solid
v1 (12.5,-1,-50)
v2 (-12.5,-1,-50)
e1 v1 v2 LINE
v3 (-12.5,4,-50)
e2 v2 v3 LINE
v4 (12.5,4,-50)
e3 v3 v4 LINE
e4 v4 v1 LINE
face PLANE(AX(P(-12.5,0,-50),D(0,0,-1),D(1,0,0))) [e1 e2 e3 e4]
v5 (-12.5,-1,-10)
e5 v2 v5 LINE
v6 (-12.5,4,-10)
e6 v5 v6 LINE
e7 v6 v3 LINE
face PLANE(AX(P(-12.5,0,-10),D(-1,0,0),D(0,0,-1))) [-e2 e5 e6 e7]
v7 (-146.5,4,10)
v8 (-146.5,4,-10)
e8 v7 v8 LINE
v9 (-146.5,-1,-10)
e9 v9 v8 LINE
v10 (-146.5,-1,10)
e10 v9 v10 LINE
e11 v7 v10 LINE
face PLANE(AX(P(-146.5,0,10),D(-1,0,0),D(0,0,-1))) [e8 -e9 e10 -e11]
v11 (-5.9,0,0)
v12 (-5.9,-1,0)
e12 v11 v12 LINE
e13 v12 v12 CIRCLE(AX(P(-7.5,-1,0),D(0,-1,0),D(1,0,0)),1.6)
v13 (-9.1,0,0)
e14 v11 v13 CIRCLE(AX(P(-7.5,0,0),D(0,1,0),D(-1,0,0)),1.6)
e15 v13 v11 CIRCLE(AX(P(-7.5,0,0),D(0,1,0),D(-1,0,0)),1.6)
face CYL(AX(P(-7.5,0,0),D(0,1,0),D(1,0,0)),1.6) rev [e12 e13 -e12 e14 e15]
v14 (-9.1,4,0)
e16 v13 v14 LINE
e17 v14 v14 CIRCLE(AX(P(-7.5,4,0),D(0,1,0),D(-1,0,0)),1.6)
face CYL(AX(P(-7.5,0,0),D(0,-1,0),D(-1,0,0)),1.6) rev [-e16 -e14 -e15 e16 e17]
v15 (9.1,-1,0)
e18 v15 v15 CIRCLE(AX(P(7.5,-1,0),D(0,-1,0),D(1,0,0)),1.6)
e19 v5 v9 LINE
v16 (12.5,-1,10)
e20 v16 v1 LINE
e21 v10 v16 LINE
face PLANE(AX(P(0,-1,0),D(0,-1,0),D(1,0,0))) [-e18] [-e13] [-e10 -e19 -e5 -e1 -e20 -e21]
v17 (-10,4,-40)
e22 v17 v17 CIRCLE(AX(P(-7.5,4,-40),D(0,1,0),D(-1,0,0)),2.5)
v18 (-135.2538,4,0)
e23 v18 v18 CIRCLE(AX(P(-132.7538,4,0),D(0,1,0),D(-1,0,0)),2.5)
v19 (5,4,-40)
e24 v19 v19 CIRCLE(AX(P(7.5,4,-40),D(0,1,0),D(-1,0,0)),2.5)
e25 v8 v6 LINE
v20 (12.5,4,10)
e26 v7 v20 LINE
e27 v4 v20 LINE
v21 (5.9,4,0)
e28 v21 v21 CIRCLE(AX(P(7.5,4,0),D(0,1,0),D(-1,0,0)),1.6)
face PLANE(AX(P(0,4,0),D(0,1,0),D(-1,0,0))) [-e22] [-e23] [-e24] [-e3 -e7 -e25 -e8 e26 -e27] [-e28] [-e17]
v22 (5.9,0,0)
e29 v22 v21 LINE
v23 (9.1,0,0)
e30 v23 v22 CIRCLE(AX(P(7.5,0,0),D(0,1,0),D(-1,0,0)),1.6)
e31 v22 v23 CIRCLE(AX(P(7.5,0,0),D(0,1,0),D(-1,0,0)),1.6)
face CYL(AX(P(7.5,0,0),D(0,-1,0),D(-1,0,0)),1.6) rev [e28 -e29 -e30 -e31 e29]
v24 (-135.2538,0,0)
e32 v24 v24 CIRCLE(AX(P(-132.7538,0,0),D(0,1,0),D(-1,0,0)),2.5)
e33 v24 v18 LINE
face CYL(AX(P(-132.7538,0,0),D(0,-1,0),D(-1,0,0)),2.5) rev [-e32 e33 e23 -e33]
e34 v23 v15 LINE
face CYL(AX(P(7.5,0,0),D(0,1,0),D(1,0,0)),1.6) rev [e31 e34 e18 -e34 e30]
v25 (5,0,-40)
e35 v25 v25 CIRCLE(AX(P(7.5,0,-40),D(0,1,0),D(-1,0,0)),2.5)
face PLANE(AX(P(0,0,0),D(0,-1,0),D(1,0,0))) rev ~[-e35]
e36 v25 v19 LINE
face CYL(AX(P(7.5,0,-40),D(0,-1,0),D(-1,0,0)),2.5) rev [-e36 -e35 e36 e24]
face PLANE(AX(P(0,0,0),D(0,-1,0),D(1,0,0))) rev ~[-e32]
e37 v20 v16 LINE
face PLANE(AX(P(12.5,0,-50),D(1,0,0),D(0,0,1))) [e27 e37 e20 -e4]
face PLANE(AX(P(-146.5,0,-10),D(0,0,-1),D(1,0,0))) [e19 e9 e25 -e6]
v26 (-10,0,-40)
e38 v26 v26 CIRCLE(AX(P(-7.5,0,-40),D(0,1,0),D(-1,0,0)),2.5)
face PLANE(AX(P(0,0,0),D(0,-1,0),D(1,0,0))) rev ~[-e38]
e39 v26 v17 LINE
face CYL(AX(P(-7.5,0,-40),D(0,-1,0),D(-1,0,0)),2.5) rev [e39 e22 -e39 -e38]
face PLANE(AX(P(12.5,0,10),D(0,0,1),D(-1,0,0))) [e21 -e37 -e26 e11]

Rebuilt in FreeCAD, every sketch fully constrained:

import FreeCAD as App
import Part
import Sketcher
from FreeCAD import Vector


def add_polygon(sketch, points):
    """Adds a closed chain of lines whose ends are joined by coincident constraints."""
    first, n = sketch.GeometryCount, len(points)
    for a, b in zip(points, points[1:] + points[:1]):
        sketch.addGeometry(Part.LineSegment(App.Vector(*a, 0), App.Vector(*b, 0)), False)
    for i in range(n):
        sketch.addConstraint(Sketcher.Constraint("Coincident", first + i, 2, first + (i + 1) % n, 1))

doc = App.newDocument("Part")
body = doc.addObject("PartDesign::Body", "Body")

# Sketch on XZ plane
sketch1 = body.newObject("Sketcher::SketchObject", "Sketch")
sketch1.AttachmentSupport = (doc.getObject("XZ_Plane"), [""])
sketch1.MapMode = "FlatFace"
add_polygon(sketch1, [(12.5, -50), (-12.5, -50), (-12.5, -10), (-146.5, -10), (-146.5, 10), (12.5, 10)])  # lines 0-5
sketch1.addGeometry(Part.Circle(Vector(7.5, -40, 0), Vector(0, 0, 1), 2.5), False)  # 6
sketch1.addGeometry(Part.Circle(Vector(-7.5, -40, 0), Vector(0, 0, 1), 2.5), False)  # 7
sketch1.addGeometry(Part.Circle(Vector(7.5, 0, 0), Vector(0, 0, 1), 1.6), False)  # 8
sketch1.addGeometry(Part.Circle(Vector(-7.5, 0, 0), Vector(0, 0, 1), 1.6), False)  # 9
sketch1.addGeometry(Part.Circle(Vector(-132.7538, 0, 0), Vector(0, 0, 1), 2.5), False)  # 10
sketch1.addConstraint(Sketcher.Constraint("Horizontal", 0))
sketch1.addConstraint(Sketcher.Constraint("Vertical", 1))
sketch1.addConstraint(Sketcher.Constraint("Horizontal", 2))
sketch1.addConstraint(Sketcher.Constraint("Vertical", 3))
sketch1.addConstraint(Sketcher.Constraint("Horizontal", 4))
sketch1.addConstraint(Sketcher.Constraint("Vertical", 5))
sketch1.addConstraint(Sketcher.Constraint("Equal", 6, 7))
sketch1.addConstraint(Sketcher.Constraint("Equal", 8, 9))
sketch1.addConstraint(Sketcher.Constraint("Equal", 7, 10))
sketch1.addConstraint(Sketcher.Constraint("Symmetric", 8, 3, 9, 3, -1, 1))
sketch1.addConstraint(Sketcher.Constraint("Symmetric", 1, 2, 4, 2, -1, 1))
sketch1.addConstraint(Sketcher.Constraint("Symmetric", 6, 3, 7, 3, -2))
sketch1.addConstraint(Sketcher.Constraint("PointOnObject", 8, 3, -1))
sketch1.addConstraint(Sketcher.Constraint("PointOnObject", 10, 3, -1))
sketch1.addConstraint(Sketcher.Constraint("Vertical", 6, 3, 8, 3))
sketch1.addConstraint(Sketcher.Constraint("Diameter", 6, 5.0))
sketch1.addConstraint(Sketcher.Constraint("Diameter", 8, 3.2))
sketch1.addConstraint(Sketcher.Constraint("DistanceX", 0, 2, 0, 1, 25.0))
sketch1.addConstraint(Sketcher.Constraint("DistanceX", 2, 2, 2, 1, 134.0))
sketch1.addConstraint(Sketcher.Constraint("DistanceY", 3, 1, 3, 2, 20.0))
sketch1.addConstraint(Sketcher.Constraint("DistanceY", 5, 2, 5, 1, 60.0))
sketch1.addConstraint(Sketcher.Constraint("DistanceX", 7, 3, 6, 3, 15.0))
sketch1.addConstraint(Sketcher.Constraint("DistanceY", 0, 2, 7, 3, 10.0))
sketch1.addConstraint(Sketcher.Constraint("DistanceX", 10, 3, -1, 1, 132.7538))
pad1 = body.newObject("PartDesign::Pad", "Pad")
pad1.Profile = sketch1
pad1.Length = 4
pad1.Reversed = True

# Sketch on XZ plane
sketch2 = body.newObject("Sketcher::SketchObject", "Sketch001")
sketch2.AttachmentSupport = (doc.getObject("XZ_Plane"), [""])
sketch2.MapMode = "FlatFace"
add_polygon(sketch2, [(12.5, 10), (-146.5, 10), (-146.5, -10), (-12.5, -10), (-12.5, -50), (12.5, -50)])  # lines 0-5
sketch2.addGeometry(Part.Circle(Vector(-7.5, 0, 0), Vector(0, 0, 1), 1.6), False)  # 6
sketch2.addGeometry(Part.Circle(Vector(7.5, 0, 0), Vector(0, 0, 1), 1.6), False)  # 7
sketch2.addConstraint(Sketcher.Constraint("Horizontal", 0))
sketch2.addConstraint(Sketcher.Constraint("Vertical", 1))
sketch2.addConstraint(Sketcher.Constraint("Horizontal", 2))
sketch2.addConstraint(Sketcher.Constraint("Vertical", 3))
sketch2.addConstraint(Sketcher.Constraint("Horizontal", 4))
sketch2.addConstraint(Sketcher.Constraint("Vertical", 5))
sketch2.addConstraint(Sketcher.Constraint("Equal", 6, 7))
sketch2.addConstraint(Sketcher.Constraint("Symmetric", 6, 3, 7, 3, -1, 1))
sketch2.addConstraint(Sketcher.Constraint("Symmetric", 2, 2, 5, 2, -1, 1))
sketch2.addConstraint(Sketcher.Constraint("PointOnObject", 6, 3, -1))
sketch2.addConstraint(Sketcher.Constraint("Diameter", 6, 3.2))
sketch2.addConstraint(Sketcher.Constraint("DistanceX", 0, 2, 0, 1, 159.0))
sketch2.addConstraint(Sketcher.Constraint("DistanceX", 2, 1, 2, 2, 134.0))
sketch2.addConstraint(Sketcher.Constraint("DistanceY", 1, 2, 1, 1, 20.0))
sketch2.addConstraint(Sketcher.Constraint("DistanceY", 3, 2, 3, 1, 40.0))
sketch2.addConstraint(Sketcher.Constraint("DistanceX", 6, 3, 7, 3, 15.0))
pad2 = body.newObject("PartDesign::Pad", "Pad001")
pad2.Profile = sketch2
pad2.Length = 1

doc.recompute()
